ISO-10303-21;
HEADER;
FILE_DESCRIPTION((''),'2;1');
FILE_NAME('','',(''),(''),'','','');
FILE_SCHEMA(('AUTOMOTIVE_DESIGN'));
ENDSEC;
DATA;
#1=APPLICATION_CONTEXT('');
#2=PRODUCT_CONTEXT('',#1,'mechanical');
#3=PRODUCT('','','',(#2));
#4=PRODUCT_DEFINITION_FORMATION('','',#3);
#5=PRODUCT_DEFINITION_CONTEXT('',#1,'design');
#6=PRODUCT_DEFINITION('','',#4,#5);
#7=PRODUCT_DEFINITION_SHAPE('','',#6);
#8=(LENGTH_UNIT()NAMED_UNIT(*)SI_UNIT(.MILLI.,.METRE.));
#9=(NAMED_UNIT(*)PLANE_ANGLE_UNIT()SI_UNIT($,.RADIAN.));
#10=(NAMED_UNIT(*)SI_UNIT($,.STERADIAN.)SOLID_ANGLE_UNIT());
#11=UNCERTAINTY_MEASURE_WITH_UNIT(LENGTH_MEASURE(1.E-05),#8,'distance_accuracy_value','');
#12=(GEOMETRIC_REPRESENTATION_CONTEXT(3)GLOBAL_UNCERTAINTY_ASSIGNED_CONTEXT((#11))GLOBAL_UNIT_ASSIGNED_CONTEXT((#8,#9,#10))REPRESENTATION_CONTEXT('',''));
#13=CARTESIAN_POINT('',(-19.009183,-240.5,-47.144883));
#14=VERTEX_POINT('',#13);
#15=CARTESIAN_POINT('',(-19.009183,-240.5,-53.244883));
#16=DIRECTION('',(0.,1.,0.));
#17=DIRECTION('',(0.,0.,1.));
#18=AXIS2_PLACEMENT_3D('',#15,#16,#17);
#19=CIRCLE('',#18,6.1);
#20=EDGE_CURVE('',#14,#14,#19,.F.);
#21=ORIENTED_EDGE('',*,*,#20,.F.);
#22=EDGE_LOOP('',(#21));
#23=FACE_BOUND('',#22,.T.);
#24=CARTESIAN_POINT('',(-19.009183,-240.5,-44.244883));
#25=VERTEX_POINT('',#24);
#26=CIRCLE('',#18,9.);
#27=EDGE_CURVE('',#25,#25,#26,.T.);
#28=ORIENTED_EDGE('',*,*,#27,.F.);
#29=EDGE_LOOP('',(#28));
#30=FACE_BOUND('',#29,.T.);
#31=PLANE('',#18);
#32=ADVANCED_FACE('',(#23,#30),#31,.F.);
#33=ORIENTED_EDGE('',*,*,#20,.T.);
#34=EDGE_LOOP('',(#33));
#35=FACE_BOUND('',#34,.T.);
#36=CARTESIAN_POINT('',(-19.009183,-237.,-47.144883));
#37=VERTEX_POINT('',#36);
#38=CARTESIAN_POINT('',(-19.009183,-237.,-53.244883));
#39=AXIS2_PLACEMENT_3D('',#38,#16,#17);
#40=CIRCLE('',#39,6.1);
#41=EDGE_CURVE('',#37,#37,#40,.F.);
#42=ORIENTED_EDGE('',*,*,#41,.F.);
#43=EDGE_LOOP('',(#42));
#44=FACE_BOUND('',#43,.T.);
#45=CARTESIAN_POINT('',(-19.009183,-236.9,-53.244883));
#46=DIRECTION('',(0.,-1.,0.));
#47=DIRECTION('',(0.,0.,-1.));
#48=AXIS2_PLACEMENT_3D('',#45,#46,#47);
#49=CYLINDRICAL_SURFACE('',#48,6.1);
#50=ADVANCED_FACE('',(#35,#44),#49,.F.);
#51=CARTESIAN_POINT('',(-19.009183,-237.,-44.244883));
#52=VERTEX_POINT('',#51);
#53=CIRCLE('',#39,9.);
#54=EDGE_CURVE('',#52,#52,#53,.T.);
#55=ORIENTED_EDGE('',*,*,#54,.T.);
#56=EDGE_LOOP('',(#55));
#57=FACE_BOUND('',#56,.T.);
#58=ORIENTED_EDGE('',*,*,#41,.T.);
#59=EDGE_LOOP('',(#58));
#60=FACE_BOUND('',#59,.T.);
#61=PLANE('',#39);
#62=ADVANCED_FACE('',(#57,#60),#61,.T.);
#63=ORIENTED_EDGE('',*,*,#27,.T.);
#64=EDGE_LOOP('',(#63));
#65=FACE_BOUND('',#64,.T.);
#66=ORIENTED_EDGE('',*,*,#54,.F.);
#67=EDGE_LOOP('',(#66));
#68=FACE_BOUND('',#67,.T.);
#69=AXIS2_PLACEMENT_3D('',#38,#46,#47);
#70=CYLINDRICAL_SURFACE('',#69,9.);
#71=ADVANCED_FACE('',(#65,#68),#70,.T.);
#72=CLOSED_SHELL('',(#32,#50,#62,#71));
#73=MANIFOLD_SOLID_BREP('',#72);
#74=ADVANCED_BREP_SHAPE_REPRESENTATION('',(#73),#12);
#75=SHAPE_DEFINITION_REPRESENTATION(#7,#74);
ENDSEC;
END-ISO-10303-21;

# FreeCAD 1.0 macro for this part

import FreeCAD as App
import Part
import Sketcher
Q = App.Units.Quantity

doc = App.newDocument("Part")
body = doc.addObject("PartDesign::Body", "Body")

sketch1 = body.newObject("Sketcher::SketchObject", "Sketch")
sketch1.AttachmentSupport = (doc.getObject("XZ_Plane"), [""])
sketch1.MapMode = "FlatFace"
sketch1.AttachmentOffset = App.Placement(App.Vector(0, 0, 240.5), App.Rotation())
sketch1.addGeometry(Part.Circle(App.Vector(-19, -53, 0), App.Vector(0, 0, 1), 9), False)
sketch1.addConstraint(Sketcher.Constraint("Diameter", 0, Q("18 mm")))
sketch1.addConstraint(Sketcher.Constraint("DistanceX", 0, 3, -1, 1, Q("19.009183 mm")))
sketch1.addConstraint(Sketcher.Constraint("DistanceY", 0, 3, -1, 1, Q("53.244883 mm")))
pad1 = body.newObject("PartDesign::Pad", "Pad")
pad1.Profile = sketch1
pad1.Length = 3.5
pad1.Reversed = True

sketch2 = body.newObject("Sketcher::SketchObject", "Sketch001")
sketch2.AttachmentSupport = (doc.getObject("XZ_Plane"), [""])
sketch2.MapMode = "FlatFace"
sketch2.AttachmentOffset = App.Placement(App.Vector(0, 0, 240.6), App.Rotation())
sketch2.addGeometry(Part.Circle(App.Vector(-19, -53, 0), App.Vector(0, 0, 1), 6), False)
sketch2.addConstraint(Sketcher.Constraint("Diameter", 0, Q("12.2 mm")))
sketch2.addConstraint(Sketcher.Constraint("DistanceX", 0, 3, -1, 1, Q("19.009183 mm")))
sketch2.addConstraint(Sketcher.Constraint("DistanceY", 0, 3, -1, 1, Q("53.244883 mm")))
pocket1 = body.newObject("PartDesign::Pocket", "Pocket")
pocket1.Profile = sketch2
pocket1.Length = 3.7

doc.recompute()
